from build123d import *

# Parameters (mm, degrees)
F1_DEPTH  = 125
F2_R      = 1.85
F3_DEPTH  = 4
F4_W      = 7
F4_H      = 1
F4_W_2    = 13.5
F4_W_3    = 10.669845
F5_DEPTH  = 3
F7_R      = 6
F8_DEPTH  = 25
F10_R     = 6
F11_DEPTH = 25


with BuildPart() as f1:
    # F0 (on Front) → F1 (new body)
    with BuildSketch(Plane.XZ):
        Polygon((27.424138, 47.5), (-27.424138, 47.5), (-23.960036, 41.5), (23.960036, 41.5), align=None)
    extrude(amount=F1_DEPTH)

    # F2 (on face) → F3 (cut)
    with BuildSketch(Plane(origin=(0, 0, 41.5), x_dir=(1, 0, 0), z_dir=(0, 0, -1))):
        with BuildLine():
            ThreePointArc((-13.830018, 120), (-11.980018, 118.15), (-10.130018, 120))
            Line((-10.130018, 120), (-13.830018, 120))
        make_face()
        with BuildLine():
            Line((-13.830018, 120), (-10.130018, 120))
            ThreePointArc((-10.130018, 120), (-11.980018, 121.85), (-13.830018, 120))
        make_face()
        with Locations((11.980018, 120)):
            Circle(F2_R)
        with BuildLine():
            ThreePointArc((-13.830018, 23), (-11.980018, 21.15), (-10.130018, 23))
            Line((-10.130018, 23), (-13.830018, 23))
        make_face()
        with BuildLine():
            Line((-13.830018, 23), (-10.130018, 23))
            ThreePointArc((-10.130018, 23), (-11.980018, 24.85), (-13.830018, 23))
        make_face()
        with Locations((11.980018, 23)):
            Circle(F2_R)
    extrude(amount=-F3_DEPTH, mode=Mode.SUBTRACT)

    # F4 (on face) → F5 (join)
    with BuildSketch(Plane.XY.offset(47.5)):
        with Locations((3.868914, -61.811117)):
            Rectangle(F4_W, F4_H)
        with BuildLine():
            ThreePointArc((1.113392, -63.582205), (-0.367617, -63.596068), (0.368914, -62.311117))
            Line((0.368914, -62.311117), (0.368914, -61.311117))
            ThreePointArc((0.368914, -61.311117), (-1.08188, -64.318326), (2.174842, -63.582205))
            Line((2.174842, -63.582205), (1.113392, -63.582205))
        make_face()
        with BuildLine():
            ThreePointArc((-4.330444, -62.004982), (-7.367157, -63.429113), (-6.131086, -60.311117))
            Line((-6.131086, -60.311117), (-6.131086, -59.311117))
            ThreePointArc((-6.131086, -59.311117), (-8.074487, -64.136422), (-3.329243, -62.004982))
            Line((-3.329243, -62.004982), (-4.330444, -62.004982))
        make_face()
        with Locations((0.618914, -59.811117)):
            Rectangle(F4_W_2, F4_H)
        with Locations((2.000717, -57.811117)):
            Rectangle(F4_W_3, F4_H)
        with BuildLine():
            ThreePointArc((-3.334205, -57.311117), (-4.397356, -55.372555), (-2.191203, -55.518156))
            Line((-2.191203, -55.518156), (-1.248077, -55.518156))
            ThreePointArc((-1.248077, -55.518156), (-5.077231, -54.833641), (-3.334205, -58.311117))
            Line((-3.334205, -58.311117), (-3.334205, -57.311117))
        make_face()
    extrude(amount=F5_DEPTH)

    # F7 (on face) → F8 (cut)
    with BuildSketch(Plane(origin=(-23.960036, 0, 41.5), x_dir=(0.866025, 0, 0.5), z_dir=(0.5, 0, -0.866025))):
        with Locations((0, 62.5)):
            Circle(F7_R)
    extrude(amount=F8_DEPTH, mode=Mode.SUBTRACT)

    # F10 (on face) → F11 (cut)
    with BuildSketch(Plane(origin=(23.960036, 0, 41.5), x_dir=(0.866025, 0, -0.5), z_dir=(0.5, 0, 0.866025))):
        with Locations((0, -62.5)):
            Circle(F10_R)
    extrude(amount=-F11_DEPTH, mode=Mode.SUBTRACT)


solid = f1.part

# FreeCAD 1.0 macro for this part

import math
import FreeCAD as App
import Part
import Sketcher
Q = App.Units.Quantity

doc = App.newDocument("Part")
body = doc.addObject("PartDesign::Body", "Body")

sketch1 = body.newObject("Sketcher::SketchObject", "Sketch")
sketch1.AttachmentSupport = (doc.getObject("XZ_Plane"), [""])
sketch1.MapMode = "FlatFace"
sketch1.addGeometry([
    Part.LineSegment(App.Vector(27.424138, 47.5, 0), App.Vector(-27.424138, 47.5, 0)),
    Part.LineSegment(App.Vector(-27.424138, 47.5, 0), App.Vector(-23.960036, 41.5, 0)),
    Part.LineSegment(App.Vector(-23.960036, 41.5, 0), App.Vector(23.960036, 41.5, 0)),
    Part.LineSegment(App.Vector(23.960036, 41.5, 0), App.Vector(27.424138, 47.5, 0)),
], False)
sketch1.addConstraint([
    Sketcher.Constraint("Coincident", 0, 2, 1, 1),
    Sketcher.Constraint("Coincident", 1, 2, 2, 1),
    Sketcher.Constraint("Coincident", 2, 2, 3, 1),
    Sketcher.Constraint("Coincident", 3, 2, 0, 1),
    Sketcher.Constraint("Horizontal", 0),
    Sketcher.Constraint("Horizontal", 2),
    Sketcher.Constraint("Equal", 1, 3),
    Sketcher.Constraint("Angle", 1, Q("-59.999997 deg")),
    Sketcher.Constraint("DistanceY", 1, 2, 0, 2, 6.0),
    Sketcher.Constraint("DistanceY", -1, 1, 0, 2, 47.5),
    Sketcher.Constraint("DistanceX", 2, 1, 2, 2, 47.920072),
    Sketcher.Constraint("DistanceX", 0, 2, -1, 1, 27.424138),
])
pad1 = body.newObject("PartDesign::Pad", "Pad")
pad1.Profile = sketch1
pad1.Length = 125

sketch2 = body.newObject("Sketcher::SketchObject", "Sketch001")
sketch2.AttachmentSupport = (doc.getObject("XY_Plane"), [""])
sketch2.MapMode = "FlatFace"
sketch2.AttachmentOffset = App.Placement(App.Vector(0, 0, 41.5), App.Rotation())
sketch2.addGeometry([
    Part.Circle(App.Vector(-11.980018, -120, 0), App.Vector(0, 0, 1), 1.85),
    Part.Circle(App.Vector(11.980018, -120, 0), App.Vector(0, 0, 1), 1.85),
    Part.Circle(App.Vector(-11.980018, -23, 0), App.Vector(0, 0, 1), 1.85),
    Part.Circle(App.Vector(11.980018, -23, 0), App.Vector(0, 0, 1), 1.85),
], False)
sketch2.addConstraint([
    Sketcher.Constraint("Equal", 0, 1),
    Sketcher.Constraint("Equal", 1, 2),
    Sketcher.Constraint("Equal", 2, 3),
    Sketcher.Constraint("Symmetric", 0, 3, 1, 3, -2),
    Sketcher.Constraint("Symmetric", 2, 3, 3, 3, -2),
    Sketcher.Constraint("Vertical", 0, 3, 2, 3),
    Sketcher.Constraint("Diameter", 0, 3.7),
    Sketcher.Constraint("DistanceY", 0, 3, -1, 1, 120.0),
    Sketcher.Constraint("DistanceY", 2, 3, -1, 1, 23.0),
    Sketcher.Constraint("DistanceX", 0, 3, -1, 1, 11.980018),
])
pocket1 = body.newObject("PartDesign::Pocket", "Pocket")
pocket1.Profile = sketch2
pocket1.Length = 4
pocket1.Reversed = True

sketch3 = body.newObject("Sketcher::SketchObject", "Sketch002")
sketch3.AttachmentSupport = (doc.getObject("XY_Plane"), [""])
sketch3.MapMode = "FlatFace"
sketch3.AttachmentOffset = App.Placement(App.Vector(0, 0, 47.5), App.Rotation())
sketch3.addGeometry([
    Part.LineSegment(App.Vector(0.368914, -62.311117, 0), App.Vector(7.368914, -62.311117, 0)),
    Part.LineSegment(App.Vector(7.368914, -62.311117, 0), App.Vector(7.368914, -61.311117, 0)),
    Part.LineSegment(App.Vector(7.368914, -61.311117, 0), App.Vector(0.368914, -61.311117, 0)),
    Part.ArcOfCircle(Part.Circle(App.Vector(0.368914, -63.164681, 0), App.Vector(0, 0, 1), 1.853564), math.radians(90.000012), math.radians(346.982155)),
    Part.LineSegment(App.Vector(2.174842, -63.582205, 0), App.Vector(1.113392, -63.582205, 0)),
    Part.ArcOfCircle(Part.Circle(App.Vector(0.368914, -63.164682, 0), App.Vector(0, 0, 1), 0.853565), math.radians(90.000026), math.radians(330.715104)),
    Part.ArcOfCircle(Part.Circle(App.Vector(-6.131085, -62.115124, 0), App.Vector(0, 0, 1), 1.804007), math.radians(90.00002), math.radians(363.500313)),
    Part.LineSegment(App.Vector(-6.131086, -60.311117, 0), App.Vector(7.368914, -60.311117, 0)),
    Part.LineSegment(App.Vector(7.368914, -60.311117, 0), App.Vector(7.368914, -59.311117, 0)),
    Part.LineSegment(App.Vector(7.368914, -59.311117, 0), App.Vector(-6.131086, -59.311117, 0)),
    Part.ArcOfCircle(Part.Circle(App.Vector(-6.131086, -62.115124, 0), App.Vector(0, 0, 1), 2.804007), math.radians(90.000004), math.radians(362.251167)),
    Part.LineSegment(App.Vector(-3.329243, -62.004982, 0), App.Vector(-4.330444, -62.004982, 0)),
    Part.ArcOfCircle(Part.Circle(App.Vector(-3.334205, -56.050308, 0), App.Vector(0, 0, 1), 1.260809), math.radians(24.965464), math.radians(269.999976)),
    Part.LineSegment(App.Vector(-2.191203, -55.518156, 0), App.Vector(-1.248077, -55.518156, 0)),
    Part.ArcOfCircle(Part.Circle(App.Vector(-3.334205, -56.135548, 0), App.Vector(0, 0, 1), 2.175569), math.radians(16.486176), math.radians(269.999981)),
    Part.LineSegment(App.Vector(-3.334205, -58.311117, 0), App.Vector(7.33564, -58.311117, 0)),
    Part.LineSegment(App.Vector(7.33564, -58.311117, 0), App.Vector(7.33564, -57.311117, 0)),
    Part.LineSegment(App.Vector(7.33564, -57.311117, 0), App.Vector(-3.334205, -57.311117, 0)),
], False)
sketch3.addConstraint([
    Sketcher.Constraint("Coincident", 0, 2, 1, 1),
    Sketcher.Constraint("Coincident", 1, 2, 2, 1),
    Sketcher.Constraint("Tangent", 2, 2, 3, 1),
    Sketcher.Constraint("Coincident", 3, 2, 4, 1),
    Sketcher.Constraint("Coincident", 4, 2, 5, 2),
    Sketcher.Constraint("Tangent", 5, 1, 0, 1),
    Sketcher.Constraint("Tangent", 6, 1, 7, 1),
    Sketcher.Constraint("Coincident", 7, 2, 8, 1),
    Sketcher.Constraint("Coincident", 8, 2, 9, 1),
    Sketcher.Constraint("Tangent", 9, 2, 10, 1),
    Sketcher.Constraint("Coincident", 10, 2, 11, 1),
    Sketcher.Constraint("Coincident", 11, 2, 6, 2),
    Sketcher.Constraint("Coincident", 12, 1, 13, 1),
    Sketcher.Constraint("Coincident", 13, 2, 14, 1),
    Sketcher.Constraint("Tangent", 14, 2, 15, 1),
    Sketcher.Constraint("Coincident", 15, 2, 16, 1),
    Sketcher.Constraint("Coincident", 16, 2, 17, 1),
    Sketcher.Constraint("Tangent", 17, 2, 12, 2),
    Sketcher.Constraint("Horizontal", 0),
    Sketcher.Constraint("Vertical", 1),
    Sketcher.Constraint("Horizontal", 2),
    Sketcher.Constraint("Horizontal", 4),
    Sketcher.Constraint("Horizontal", 7),
    Sketcher.Constraint("Vertical", 8),
    Sketcher.Constraint("Horizontal", 9),
    Sketcher.Constraint("Horizontal", 11),
    Sketcher.Constraint("Horizontal", 13),
    Sketcher.Constraint("Horizontal", 15),
    Sketcher.Constraint("Vertical", 16),
    Sketcher.Constraint("Horizontal", 17),
    Sketcher.Constraint("Coincident", 5, 3, 3, 3),
    Sketcher.Constraint("Coincident", 10, 3, 6, 3),
    Sketcher.Constraint("Vertical", 12, 3, 14, 3),
    Sketcher.Constraint("Vertical", 1, 2, 7, 2),
    Sketcher.Constraint("Equal", 1, 8),
    Sketcher.Constraint("Equal", 8, 16),
    Sketcher.Constraint("DistanceX", 0, 1, 0, 2, 7.0),
    Sketcher.Constraint("DistanceY", 1, 1, 1, 2, 1.0),
    Sketcher.Constraint("DistanceX", 7, 1, 7, 2, 13.5),
    Sketcher.Constraint("DistanceY", 2, 2, 6, 1, 1.0),
    Sketcher.Constraint("DistanceY", 9, 2, 14, 2, 1.0),
    Sketcher.Constraint("Radius", 12, 1.260809),
    Sketcher.Constraint("Radius", 14, 2.175569),
    Sketcher.Constraint("DistanceX", 11, 2, 11, 1, 1.001201),
    Sketcher.Constraint("Radius", 3, 1.853564),
    Sketcher.Constraint("Radius", 6, 1.804007),
    Sketcher.Constraint("DistanceX", 12, 3, 12, 1, 1.143002),
    Sketcher.Constraint("DistanceX", 4, 2, 4, 1, 1.06145),
    Sketcher.Constraint("DistanceX", 15, 1, 15, 2, 10.669845),
    Sketcher.Constraint("DistanceY", 3, 3, -1, 1, 63.164681),
    Sketcher.Constraint("DistanceX", -1, 1, 3, 2, 2.174842),
    Sketcher.Constraint("DistanceX", -1, 1, 15, 2, 7.33564),
])
pad2 = body.newObject("PartDesign::Pad", "Pad001")
pad2.Profile = sketch3
pad2.Length = 3

sketch4 = body.newObject("Sketcher::SketchObject", "Sketch003")
sketch4.Placement = App.Placement(App.Vector(-23.960036, 0, 41.5), App.Rotation(App.Vector(0.866025303, 0, 0.500000175), App.Vector(0, -1, 0), App.Vector(0.500000175, 0, -0.866025303), "ZXY"))
sketch4.addGeometry(Part.Circle(App.Vector(0, 62.5, 0), App.Vector(0, 0, 1), 6), False)
sketch4.addConstraint([
    Sketcher.Constraint("PointOnObject", 0, 3, -2),
    Sketcher.Constraint("Diameter", 0, 12.0),
    Sketcher.Constraint("DistanceY", -1, 1, 0, 3, 62.5),
])
pocket2 = body.newObject("PartDesign::Pocket", "Pocket001")
pocket2.Profile = sketch4
pocket2.Length = 25
pocket2.Reversed = True

sketch5 = body.newObject("Sketcher::SketchObject", "Sketch004")
sketch5.Placement = App.Placement(App.Vector(23.960036, 0, 41.5), App.Rotation(App.Vector(0.866025303, 0, -0.500000175), App.Vector(0, 1, 0), App.Vector(0.500000175, 0, 0.866025303), "ZXY"))
sketch5.addGeometry(Part.Circle(App.Vector(0, -62.5, 0), App.Vector(0, 0, 1), 6), False)
sketch5.addConstraint([
    Sketcher.Constraint("PointOnObject", 0, 3, -2),
    Sketcher.Constraint("Diameter", 0, 12.0),
    Sketcher.Constraint("DistanceY", 0, 3, -1, 1, 62.5),
])
pocket3 = body.newObject("PartDesign::Pocket", "Pocket002")
pocket3.Profile = sketch5
pocket3.Length = 25

doc.recompute()
